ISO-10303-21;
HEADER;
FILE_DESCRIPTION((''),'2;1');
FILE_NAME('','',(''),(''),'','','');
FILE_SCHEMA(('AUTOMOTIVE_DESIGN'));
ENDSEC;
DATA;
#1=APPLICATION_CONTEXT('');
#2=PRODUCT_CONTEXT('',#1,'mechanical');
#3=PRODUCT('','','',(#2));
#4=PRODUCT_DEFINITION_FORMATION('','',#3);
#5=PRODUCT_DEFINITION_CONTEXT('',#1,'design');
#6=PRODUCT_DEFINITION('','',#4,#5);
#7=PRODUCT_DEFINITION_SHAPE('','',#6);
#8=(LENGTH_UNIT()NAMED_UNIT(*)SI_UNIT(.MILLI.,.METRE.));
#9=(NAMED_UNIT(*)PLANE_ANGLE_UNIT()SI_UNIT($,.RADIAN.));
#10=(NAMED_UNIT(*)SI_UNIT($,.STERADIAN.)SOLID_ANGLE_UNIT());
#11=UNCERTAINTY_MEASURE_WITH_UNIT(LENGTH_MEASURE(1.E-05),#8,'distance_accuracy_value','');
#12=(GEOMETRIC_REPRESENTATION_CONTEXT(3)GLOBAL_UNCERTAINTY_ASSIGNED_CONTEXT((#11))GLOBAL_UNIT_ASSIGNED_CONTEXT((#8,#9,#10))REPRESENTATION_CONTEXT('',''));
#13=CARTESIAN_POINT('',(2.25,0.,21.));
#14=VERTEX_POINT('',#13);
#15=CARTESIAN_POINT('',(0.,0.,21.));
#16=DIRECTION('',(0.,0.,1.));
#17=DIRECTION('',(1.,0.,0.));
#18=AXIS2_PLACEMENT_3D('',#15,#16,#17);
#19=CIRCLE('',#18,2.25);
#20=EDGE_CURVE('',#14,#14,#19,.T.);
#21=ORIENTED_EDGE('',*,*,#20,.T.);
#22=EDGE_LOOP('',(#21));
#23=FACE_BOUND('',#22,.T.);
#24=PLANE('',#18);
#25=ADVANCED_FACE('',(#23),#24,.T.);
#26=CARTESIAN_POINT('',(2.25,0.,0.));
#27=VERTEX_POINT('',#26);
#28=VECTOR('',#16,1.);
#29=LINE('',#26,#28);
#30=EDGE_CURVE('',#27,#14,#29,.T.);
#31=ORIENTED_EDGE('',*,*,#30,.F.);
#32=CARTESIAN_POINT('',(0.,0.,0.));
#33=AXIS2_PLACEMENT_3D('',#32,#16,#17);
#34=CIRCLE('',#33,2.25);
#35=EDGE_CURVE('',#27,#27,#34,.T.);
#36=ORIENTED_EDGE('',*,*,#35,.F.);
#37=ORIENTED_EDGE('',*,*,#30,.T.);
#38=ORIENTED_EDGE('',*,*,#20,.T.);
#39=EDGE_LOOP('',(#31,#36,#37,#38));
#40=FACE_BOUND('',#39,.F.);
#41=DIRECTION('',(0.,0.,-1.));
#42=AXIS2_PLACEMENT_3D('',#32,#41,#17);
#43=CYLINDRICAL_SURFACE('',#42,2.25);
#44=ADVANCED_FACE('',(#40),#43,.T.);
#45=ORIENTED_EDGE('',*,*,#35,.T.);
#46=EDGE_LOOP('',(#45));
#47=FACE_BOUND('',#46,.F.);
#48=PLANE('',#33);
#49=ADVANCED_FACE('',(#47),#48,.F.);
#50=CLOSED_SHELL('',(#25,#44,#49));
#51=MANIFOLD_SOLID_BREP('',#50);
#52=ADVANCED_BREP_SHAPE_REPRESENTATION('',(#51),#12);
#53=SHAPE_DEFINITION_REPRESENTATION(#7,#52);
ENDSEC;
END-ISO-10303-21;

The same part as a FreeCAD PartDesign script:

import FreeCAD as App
import Part
import Sketcher

V = App.Vector

doc = App.newDocument("Part")
body = doc.addObject("PartDesign::Body", "Body")

sketch1 = doc.addObject("Sketcher::SketchObject", "Sketch")
body.addObject(sketch1)
sketch1.AttachmentSupport = (doc.XY_Plane, [""])
sketch1.MapMode = "FlatFace"
sketch1.addGeometry(Part.Circle(V(0, 0, 0), V(0, 0, 1), 2.2), False)
sketch1.addConstraint([
    Sketcher.Constraint("Coincident", 0, 3, -1, 1),
    Sketcher.Constraint("Diameter", 0, 4.5),
])
pad1 = doc.addObject("PartDesign::Pad", "Pad")
body.addObject(pad1)
pad1.Profile = sketch1
pad1.Length = 21

doc.recompute()
